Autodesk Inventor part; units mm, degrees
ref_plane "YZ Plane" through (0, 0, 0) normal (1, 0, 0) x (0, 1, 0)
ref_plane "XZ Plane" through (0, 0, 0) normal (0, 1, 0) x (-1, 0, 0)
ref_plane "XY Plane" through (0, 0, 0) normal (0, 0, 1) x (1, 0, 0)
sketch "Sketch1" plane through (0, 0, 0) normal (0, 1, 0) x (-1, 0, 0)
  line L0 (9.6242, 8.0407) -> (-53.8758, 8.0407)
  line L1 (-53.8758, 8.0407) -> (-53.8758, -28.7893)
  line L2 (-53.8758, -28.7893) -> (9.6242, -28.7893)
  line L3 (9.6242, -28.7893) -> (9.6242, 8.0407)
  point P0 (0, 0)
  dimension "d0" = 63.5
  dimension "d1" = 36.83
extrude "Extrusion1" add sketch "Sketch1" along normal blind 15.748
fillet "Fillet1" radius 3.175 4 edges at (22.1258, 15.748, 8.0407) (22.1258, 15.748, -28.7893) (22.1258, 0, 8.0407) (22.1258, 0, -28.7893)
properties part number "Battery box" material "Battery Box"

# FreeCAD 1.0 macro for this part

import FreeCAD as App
import Part
import Sketcher
Q = App.Units.Quantity


def edges_at(feature, points):
    """Names of the edges that pass closest to the given points."""
    edges = feature.Shape.Edges
    near = lambda p: min(range(len(edges)), key=lambda i: edges[i].distToShape(Part.Vertex(*p))[0])
    return sorted({f"Edge{near(p) + 1}" for p in points})

doc = App.newDocument("Part")
params = doc.addObject("Spreadsheet::Sheet", "Params")
for row, (alias, value) in enumerate([
    ("sketch1_width", "2.5 in"),
    ("sketch1_height", "1.45 in"),
    ("pad1_length", "0.62 in"),
    ("fillet_radius", "0.125 in"),
], start=1):
    params.set(f"A{row}", alias)
    params.set(f"B{row}", "=" + value)
    params.setAlias(f"B{row}", alias)

body = doc.addObject("PartDesign::Body", "Body")

# Sketch on XZ plane
sketch1 = body.newObject("Sketcher::SketchObject", "Sketch")
sketch1.AttachmentSupport = (doc.getObject("XZ_Plane"), [""])
sketch1.MapMode = "FlatFace"
sketch1.addGeometry([
    Part.LineSegment(App.Vector(-10, -29, 0), App.Vector(-10, 8, 0)),
    Part.LineSegment(App.Vector(-10, 8, 0), App.Vector(54, 8, 0)),
    Part.LineSegment(App.Vector(54, 8, 0), App.Vector(54, -29, 0)),
    Part.LineSegment(App.Vector(54, -29, 0), App.Vector(-10, -29, 0)),
], False)
sketch1.addConstraint([
    Sketcher.Constraint("Coincident", 0, 2, 1, 1),
    Sketcher.Constraint("Coincident", 1, 2, 2, 1),
    Sketcher.Constraint("Coincident", 2, 2, 3, 1),
    Sketcher.Constraint("Coincident", 3, 2, 0, 1),
    Sketcher.Constraint("Vertical", 0),
    Sketcher.Constraint("Horizontal", 1),
    Sketcher.Constraint("Vertical", 2),
    Sketcher.Constraint("Horizontal", 3),
    Sketcher.Constraint("DistanceX", 1, 1, 1, 2, Q("2.5 in")),
    Sketcher.Constraint("DistanceY", 0, 1, 0, 2, Q("1.45 in")),
    Sketcher.Constraint("DistanceX", 0, 2, -1, 1, Q("0.3789 in")),
    Sketcher.Constraint("DistanceY", -1, 1, 0, 2, 8.0407),
])
sketch1.setExpression("Constraints[8]", "Params.sketch1_width")
sketch1.setExpression("Constraints[9]", "Params.sketch1_height")
pad1 = body.newObject("PartDesign::Pad", "Pad")
pad1.Profile = sketch1
pad1.setExpression("Length", "Params.pad1_length")
pad1.Reversed = True
doc.recompute()

fillet = body.newObject("PartDesign::Fillet", "Fillet")
fillet.Base = (pad1, edges_at(pad1, [
    (22.126, 15.748, 8.041),
    (22.126, 15.748, -28.789),
    (22.126, 0, 8.041),
    (22.126, 0, -28.789),
]))
fillet.setExpression("Radius", "Params.fillet_radius")

doc.recompute()
